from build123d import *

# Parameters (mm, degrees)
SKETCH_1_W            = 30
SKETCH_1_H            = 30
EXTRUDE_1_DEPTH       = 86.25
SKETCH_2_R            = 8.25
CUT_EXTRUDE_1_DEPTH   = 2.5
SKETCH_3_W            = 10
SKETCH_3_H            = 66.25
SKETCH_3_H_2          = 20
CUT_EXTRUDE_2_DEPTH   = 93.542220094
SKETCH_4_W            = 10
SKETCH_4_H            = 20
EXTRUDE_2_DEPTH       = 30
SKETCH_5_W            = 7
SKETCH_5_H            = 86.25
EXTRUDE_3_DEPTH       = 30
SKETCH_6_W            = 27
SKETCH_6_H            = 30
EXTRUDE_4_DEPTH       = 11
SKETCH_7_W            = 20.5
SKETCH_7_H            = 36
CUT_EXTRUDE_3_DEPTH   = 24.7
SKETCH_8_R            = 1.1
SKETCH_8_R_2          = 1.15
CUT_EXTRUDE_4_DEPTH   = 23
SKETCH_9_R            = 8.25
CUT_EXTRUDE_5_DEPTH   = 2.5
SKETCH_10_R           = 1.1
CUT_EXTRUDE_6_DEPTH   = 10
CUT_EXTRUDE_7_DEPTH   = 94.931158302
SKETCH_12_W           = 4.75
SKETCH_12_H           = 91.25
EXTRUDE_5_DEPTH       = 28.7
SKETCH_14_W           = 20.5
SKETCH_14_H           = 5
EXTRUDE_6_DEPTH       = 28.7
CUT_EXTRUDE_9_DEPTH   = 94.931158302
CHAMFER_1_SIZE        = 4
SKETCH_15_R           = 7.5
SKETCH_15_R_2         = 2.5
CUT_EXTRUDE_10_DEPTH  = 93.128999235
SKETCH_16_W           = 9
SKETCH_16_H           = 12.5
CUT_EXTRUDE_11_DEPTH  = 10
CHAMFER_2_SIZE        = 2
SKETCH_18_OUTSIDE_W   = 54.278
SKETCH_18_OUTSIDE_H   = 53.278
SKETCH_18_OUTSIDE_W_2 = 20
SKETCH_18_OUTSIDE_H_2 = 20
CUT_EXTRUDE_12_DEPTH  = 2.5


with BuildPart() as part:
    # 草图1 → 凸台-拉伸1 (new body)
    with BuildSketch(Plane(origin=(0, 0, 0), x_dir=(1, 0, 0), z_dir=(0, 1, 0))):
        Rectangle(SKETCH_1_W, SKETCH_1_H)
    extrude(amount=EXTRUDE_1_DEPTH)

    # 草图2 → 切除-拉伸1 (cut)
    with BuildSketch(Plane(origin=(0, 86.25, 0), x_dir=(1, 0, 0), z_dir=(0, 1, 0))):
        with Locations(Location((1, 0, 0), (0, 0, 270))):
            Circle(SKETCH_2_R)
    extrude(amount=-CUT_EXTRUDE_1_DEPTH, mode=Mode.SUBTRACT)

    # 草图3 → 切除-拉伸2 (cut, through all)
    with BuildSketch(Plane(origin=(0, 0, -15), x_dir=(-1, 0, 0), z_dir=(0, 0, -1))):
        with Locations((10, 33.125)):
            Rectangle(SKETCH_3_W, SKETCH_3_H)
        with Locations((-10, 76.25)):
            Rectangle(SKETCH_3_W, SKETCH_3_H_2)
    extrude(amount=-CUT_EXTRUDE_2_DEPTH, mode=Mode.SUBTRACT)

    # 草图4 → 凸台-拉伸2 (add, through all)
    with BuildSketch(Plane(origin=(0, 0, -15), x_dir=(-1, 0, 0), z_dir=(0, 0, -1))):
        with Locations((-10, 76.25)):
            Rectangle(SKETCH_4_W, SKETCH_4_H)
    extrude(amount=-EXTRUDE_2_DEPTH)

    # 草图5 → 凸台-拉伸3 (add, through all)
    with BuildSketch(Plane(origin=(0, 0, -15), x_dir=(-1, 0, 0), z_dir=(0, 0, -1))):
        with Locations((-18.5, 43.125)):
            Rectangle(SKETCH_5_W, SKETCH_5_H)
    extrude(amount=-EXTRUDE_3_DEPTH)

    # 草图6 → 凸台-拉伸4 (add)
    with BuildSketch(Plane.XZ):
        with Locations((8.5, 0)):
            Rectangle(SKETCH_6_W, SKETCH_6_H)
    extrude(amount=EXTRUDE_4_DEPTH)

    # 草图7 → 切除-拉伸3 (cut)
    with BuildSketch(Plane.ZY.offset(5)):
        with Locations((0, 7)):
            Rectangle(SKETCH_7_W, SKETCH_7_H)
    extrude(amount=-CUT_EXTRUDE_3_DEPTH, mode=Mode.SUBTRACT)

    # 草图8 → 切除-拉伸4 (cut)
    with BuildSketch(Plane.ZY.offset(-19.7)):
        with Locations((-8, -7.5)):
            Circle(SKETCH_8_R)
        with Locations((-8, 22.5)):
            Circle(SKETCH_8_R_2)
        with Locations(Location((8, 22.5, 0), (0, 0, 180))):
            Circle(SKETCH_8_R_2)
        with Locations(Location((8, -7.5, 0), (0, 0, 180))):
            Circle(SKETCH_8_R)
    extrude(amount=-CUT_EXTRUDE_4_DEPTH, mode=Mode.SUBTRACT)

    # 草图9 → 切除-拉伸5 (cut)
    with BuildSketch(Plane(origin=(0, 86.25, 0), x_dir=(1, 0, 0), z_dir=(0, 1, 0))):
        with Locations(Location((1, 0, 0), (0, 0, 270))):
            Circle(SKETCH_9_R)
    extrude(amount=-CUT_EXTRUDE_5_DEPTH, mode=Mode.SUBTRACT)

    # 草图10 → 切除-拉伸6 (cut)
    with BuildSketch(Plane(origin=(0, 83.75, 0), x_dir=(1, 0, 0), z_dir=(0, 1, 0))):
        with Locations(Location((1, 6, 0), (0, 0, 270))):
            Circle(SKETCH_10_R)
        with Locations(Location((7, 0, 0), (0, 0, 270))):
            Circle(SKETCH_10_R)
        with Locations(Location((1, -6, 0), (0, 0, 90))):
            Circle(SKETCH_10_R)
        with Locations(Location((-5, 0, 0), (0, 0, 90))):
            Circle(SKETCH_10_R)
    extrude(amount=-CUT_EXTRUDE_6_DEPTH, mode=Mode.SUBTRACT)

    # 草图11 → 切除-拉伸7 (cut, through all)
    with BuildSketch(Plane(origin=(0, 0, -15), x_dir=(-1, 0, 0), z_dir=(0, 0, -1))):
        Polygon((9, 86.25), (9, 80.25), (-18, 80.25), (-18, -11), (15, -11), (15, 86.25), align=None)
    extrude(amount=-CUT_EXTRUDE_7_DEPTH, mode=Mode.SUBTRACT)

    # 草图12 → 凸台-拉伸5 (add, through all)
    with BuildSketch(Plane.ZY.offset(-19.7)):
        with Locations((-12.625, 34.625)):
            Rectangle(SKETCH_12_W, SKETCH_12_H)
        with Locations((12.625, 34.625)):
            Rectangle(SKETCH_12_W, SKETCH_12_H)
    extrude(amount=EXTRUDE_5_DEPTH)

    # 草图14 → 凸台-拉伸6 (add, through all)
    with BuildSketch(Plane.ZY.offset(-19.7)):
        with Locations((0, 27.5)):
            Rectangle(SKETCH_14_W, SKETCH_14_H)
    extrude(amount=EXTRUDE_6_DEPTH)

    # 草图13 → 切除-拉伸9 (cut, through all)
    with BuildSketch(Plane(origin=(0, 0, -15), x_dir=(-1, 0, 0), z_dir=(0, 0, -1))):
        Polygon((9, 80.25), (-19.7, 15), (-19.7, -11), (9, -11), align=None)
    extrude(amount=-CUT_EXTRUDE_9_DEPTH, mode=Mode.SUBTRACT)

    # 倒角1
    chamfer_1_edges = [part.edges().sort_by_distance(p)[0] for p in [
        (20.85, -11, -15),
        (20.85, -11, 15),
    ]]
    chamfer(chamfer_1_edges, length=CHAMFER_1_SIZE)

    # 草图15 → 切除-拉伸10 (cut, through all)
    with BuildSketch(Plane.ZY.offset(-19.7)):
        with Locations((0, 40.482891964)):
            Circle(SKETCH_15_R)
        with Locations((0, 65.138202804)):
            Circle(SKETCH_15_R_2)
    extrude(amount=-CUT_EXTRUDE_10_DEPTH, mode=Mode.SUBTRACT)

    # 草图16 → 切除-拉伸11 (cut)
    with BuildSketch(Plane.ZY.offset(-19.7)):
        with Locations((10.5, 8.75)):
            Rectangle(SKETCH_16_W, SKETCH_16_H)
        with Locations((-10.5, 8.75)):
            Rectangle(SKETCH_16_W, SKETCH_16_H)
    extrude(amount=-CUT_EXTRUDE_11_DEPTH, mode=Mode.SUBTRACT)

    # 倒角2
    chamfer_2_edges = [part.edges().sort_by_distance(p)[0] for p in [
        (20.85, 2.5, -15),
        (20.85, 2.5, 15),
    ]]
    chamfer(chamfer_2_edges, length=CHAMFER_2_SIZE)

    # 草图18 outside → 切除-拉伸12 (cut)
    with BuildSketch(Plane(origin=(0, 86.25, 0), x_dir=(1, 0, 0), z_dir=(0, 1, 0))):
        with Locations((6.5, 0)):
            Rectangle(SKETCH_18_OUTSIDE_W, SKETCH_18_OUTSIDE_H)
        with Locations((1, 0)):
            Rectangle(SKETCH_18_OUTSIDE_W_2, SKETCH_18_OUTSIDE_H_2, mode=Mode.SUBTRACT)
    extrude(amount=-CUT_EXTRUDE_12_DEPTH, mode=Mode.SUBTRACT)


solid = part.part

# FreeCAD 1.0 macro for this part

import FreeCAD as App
import Part
import Sketcher
Q = App.Units.Quantity


def edges_at(feature, points):
    """Names of the edges that pass closest to the given points."""
    edges = feature.Shape.Edges
    near = lambda p: min(range(len(edges)), key=lambda i: edges[i].distToShape(Part.Vertex(*p))[0])
    return sorted({f"Edge{near(p) + 1}" for p in points})


def add_polygon(sketch, points):
    """Adds a closed chain of lines whose ends are joined by coincident constraints."""
    first, n = sketch.GeometryCount, len(points)
    for a, b in zip(points, points[1:] + points[:1]):
        sketch.addGeometry(Part.LineSegment(App.Vector(*a, 0), App.Vector(*b, 0)), False)
    for i in range(n):
        sketch.addConstraint(Sketcher.Constraint("Coincident", first + i, 2, first + (i + 1) % n, 1))

doc = App.newDocument("Part")
body = doc.addObject("PartDesign::Body", "Body")

sketch1 = body.newObject("Sketcher::SketchObject", "Sketch")
sketch1.AttachmentSupport = (doc.getObject("XZ_Plane"), [""])
sketch1.MapMode = "FlatFace"
add_polygon(sketch1, [(-15, -15), (-15, 15), (15, 15), (15, -15)])
sketch1.addConstraint(Sketcher.Constraint("Vertical", 0))
sketch1.addConstraint(Sketcher.Constraint("Horizontal", 1))
sketch1.addConstraint(Sketcher.Constraint("Vertical", 2))
sketch1.addConstraint(Sketcher.Constraint("Horizontal", 3))
sketch1.addConstraint(Sketcher.Constraint("Symmetric", 0, 2, 2, 2, -1, 1))
sketch1.addConstraint(Sketcher.Constraint("Equal", 3, 0))
sketch1.addConstraint(Sketcher.Constraint("DistanceX", 1, 1, 1, 2, Q("30 mm")))
pad1 = body.newObject("PartDesign::Pad", "Pad")
pad1.Profile = sketch1
pad1.Length = 86.25
pad1.Reversed = True

sketch2 = body.newObject("Sketcher::SketchObject", "Sketch001")
sketch2.AttachmentSupport = (doc.getObject("XZ_Plane"), [""])
sketch2.MapMode = "FlatFace"
sketch2.AttachmentOffset = App.Placement(App.Vector(0, 0, -86.25), App.Rotation())
sketch2.addGeometry(Part.Circle(App.Vector(1, 0, 0), App.Vector(0, 0, 1), 8), False)
sketch2.addConstraint(Sketcher.Constraint("PointOnObject", 0, 3, -1))
sketch2.addConstraint(Sketcher.Constraint("Diameter", 0, Q("16.5 mm")))
sketch2.addConstraint(Sketcher.Constraint("DistanceX", -1, 1, 0, 3, Q("1 mm")))
pocket1 = body.newObject("PartDesign::Pocket", "Pocket")
pocket1.Profile = sketch2
pocket1.Length = 2.5
pocket1.Reversed = True

sketch3 = body.newObject("Sketcher::SketchObject", "Sketch002")
sketch3.AttachmentSupport = (doc.getObject("XY_Plane"), [""])
sketch3.MapMode = "FlatFace"
sketch3.AttachmentOffset = App.Placement(App.Vector(0, 0, -15), App.Rotation())
add_polygon(sketch3, [(-5, 66), (-5, 0), (-15, 0), (-15, 66)])
add_polygon(sketch3, [(15, 86), (15, 66), (5, 66), (5, 86)])
sketch3.addConstraint(Sketcher.Constraint("Vertical", 0))
sketch3.addConstraint(Sketcher.Constraint("Horizontal", 1))
sketch3.addConstraint(Sketcher.Constraint("Vertical", 2))
sketch3.addConstraint(Sketcher.Constraint("Horizontal", 3))
sketch3.addConstraint(Sketcher.Constraint("Vertical", 4))
sketch3.addConstraint(Sketcher.Constraint("Horizontal", 5))
sketch3.addConstraint(Sketcher.Constraint("Vertical", 6))
sketch3.addConstraint(Sketcher.Constraint("Horizontal", 7))
sketch3.addConstraint(Sketcher.Constraint("Symmetric", 2, 2, 4, 2, -2))
sketch3.addConstraint(Sketcher.Constraint("PointOnObject", 0, 2, -1))
sketch3.addConstraint(Sketcher.Constraint("Equal", 3, 5))
sketch3.addConstraint(Sketcher.Constraint("DistanceX", 1, 2, 1, 1, Q("10 mm")))
sketch3.addConstraint(Sketcher.Constraint("DistanceY", 4, 2, 4, 1, Q("20 mm")))
sketch3.addConstraint(Sketcher.Constraint("DistanceX", 0, 2, -1, 1, Q("5 mm")))
sketch3.addConstraint(Sketcher.Constraint("DistanceY", 0, 2, 0, 1, Q("66.25 mm")))
pocket2 = body.newObject("PartDesign::Pocket", "Pocket001")
pocket2.Profile = sketch3
pocket2.Type = "ThroughAll"
pocket2.Reversed = True

sketch4 = body.newObject("Sketcher::SketchObject", "Sketch003")
sketch4.AttachmentSupport = (doc.getObject("XY_Plane"), [""])
sketch4.MapMode = "FlatFace"
sketch4.AttachmentOffset = App.Placement(App.Vector(0, 0, -15), App.Rotation())
add_polygon(sketch4, [(15, 86), (15, 66), (5, 66), (5, 86)])
sketch4.addConstraint(Sketcher.Constraint("Vertical", 0))
sketch4.addConstraint(Sketcher.Constraint("Horizontal", 1))
sketch4.addConstraint(Sketcher.Constraint("Vertical", 2))
sketch4.addConstraint(Sketcher.Constraint("Horizontal", 3))
sketch4.addConstraint(Sketcher.Constraint("DistanceX", 1, 2, 1, 1, Q("10 mm")))
sketch4.addConstraint(Sketcher.Constraint("DistanceY", 0, 2, 0, 1, Q("20 mm")))
sketch4.addConstraint(Sketcher.Constraint("DistanceX", -1, 1, 0, 2, Q("15 mm")))
sketch4.addConstraint(Sketcher.Constraint("DistanceY", -1, 1, 0, 2, Q("66.25 mm")))
pad2 = body.newObject("PartDesign::Pad", "Pad001")
pad2.Profile = sketch4
pad2.Length = 30

sketch5 = body.newObject("Sketcher::SketchObject", "Sketch004")
sketch5.AttachmentSupport = (doc.getObject("XY_Plane"), [""])
sketch5.MapMode = "FlatFace"
sketch5.AttachmentOffset = App.Placement(App.Vector(0, 0, -15), App.Rotation())
add_polygon(sketch5, [(22, 86), (22, 0), (15, 0), (15, 86)])
sketch5.addConstraint(Sketcher.Constraint("Vertical", 0))
sketch5.addConstraint(Sketcher.Constraint("Horizontal", 1))
sketch5.addConstraint(Sketcher.Constraint("Vertical", 2))
sketch5.addConstraint(Sketcher.Constraint("Horizontal", 3))
sketch5.addConstraint(Sketcher.Constraint("PointOnObject", 0, 2, -1))
sketch5.addConstraint(Sketcher.Constraint("DistanceX", 1, 2, 1, 1, Q("7 mm")))
sketch5.addConstraint(Sketcher.Constraint("DistanceX", -1, 1, 0, 2, Q("22 mm")))
sketch5.addConstraint(Sketcher.Constraint("DistanceY", 0, 2, 0, 1, Q("86.25 mm")))
pad3 = body.newObject("PartDesign::Pad", "Pad002")
pad3.Profile = sketch5
pad3.Length = 30

sketch6 = body.newObject("Sketcher::SketchObject", "Sketch005")
sketch6.AttachmentSupport = (doc.getObject("XZ_Plane"), [""])
sketch6.MapMode = "FlatFace"
add_polygon(sketch6, [(-5, 15), (-5, -15), (22, -15), (22, 15)])
sketch6.addConstraint(Sketcher.Constraint("Vertical", 0))
sketch6.addConstraint(Sketcher.Constraint("Horizontal", 1))
sketch6.addConstraint(Sketcher.Constraint("Vertical", 2))
sketch6.addConstraint(Sketcher.Constraint("Horizontal", 3))
sketch6.addConstraint(Sketcher.Constraint("DistanceX", 1, 1, 1, 2, Q("27 mm")))
sketch6.addConstraint(Sketcher.Constraint("DistanceY", 0, 2, 0, 1, Q("30 mm")))
sketch6.addConstraint(Sketcher.Constraint("DistanceX", 0, 2, -1, 1, Q("5 mm")))
sketch6.addConstraint(Sketcher.Constraint("DistanceY", 0, 2, -1, 1, Q("15 mm")))
pad4 = body.newObject("PartDesign::Pad", "Pad003")
pad4.Profile = sketch6
pad4.Length = 11

sketch7 = body.newObject("Sketcher::SketchObject", "Sketch006")
sketch7.AttachmentSupport = (doc.getObject("YZ_Plane"), [""])
sketch7.MapMode = "FlatFace"
sketch7.AttachmentOffset = App.Placement(App.Vector(0, 0, -5), App.Rotation())
add_polygon(sketch7, [(25, -10), (-11, -10), (-11, 10), (25, 10)])
sketch7.addConstraint(Sketcher.Constraint("Horizontal", 0))
sketch7.addConstraint(Sketcher.Constraint("Vertical", 1))
sketch7.addConstraint(Sketcher.Constraint("Horizontal", 2))
sketch7.addConstraint(Sketcher.Constraint("Vertical", 3))
sketch7.addConstraint(Sketcher.Constraint("DistanceX", 0, 2, 0, 1, Q("36 mm")))
sketch7.addConstraint(Sketcher.Constraint("DistanceY", 1, 1, 1, 2, Q("20.5 mm")))
sketch7.addConstraint(Sketcher.Constraint("DistanceX", 0, 2, -1, 1, Q("11 mm")))
sketch7.addConstraint(Sketcher.Constraint("DistanceY", 0, 2, -1, 1, Q("10.25 mm")))
pocket3 = body.newObject("PartDesign::Pocket", "Pocket002")
pocket3.Profile = sketch7
pocket3.Length = 24.7
pocket3.Reversed = True

sketch8 = body.newObject("Sketcher::SketchObject", "Sketch007")
sketch8.AttachmentSupport = (doc.getObject("YZ_Plane"), [""])
sketch8.MapMode = "FlatFace"
sketch8.AttachmentOffset = App.Placement(App.Vector(0, 0, 19.7), App.Rotation())
sketch8.addGeometry(Part.Circle(App.Vector(-7.5, -8, 0), App.Vector(0, 0, 1), 1.1), False)
sketch8.addGeometry(Part.Circle(App.Vector(22.5, -8, 0), App.Vector(0, 0, 1), 1.1), False)
sketch8.addGeometry(Part.Circle(App.Vector(22.5, 8, 0), App.Vector(0, 0, 1), 1.1), False)
sketch8.addGeometry(Part.Circle(App.Vector(-7.5, 8, 0), App.Vector(0, 0, 1), 1.1), False)
sketch8.addConstraint(Sketcher.Constraint("Equal", 1, 2))
sketch8.addConstraint(Sketcher.Constraint("Equal", 0, 3))
sketch8.addConstraint(Sketcher.Constraint("Symmetric", 1, 3, 2, 3, -1))
sketch8.addConstraint(Sketcher.Constraint("Symmetric", 0, 3, 3, 3, -1))
sketch8.addConstraint(Sketcher.Constraint("Horizontal", 0, 3, 1, 3))
sketch8.addConstraint(Sketcher.Constraint("Diameter", 0, Q("2.2 mm")))
sketch8.addConstraint(Sketcher.Constraint("Diameter", 1, Q("2.3 mm")))
sketch8.addConstraint(Sketcher.Constraint("DistanceY", 0, 3, -1, 1, Q("8 mm")))
sketch8.addConstraint(Sketcher.Constraint("DistanceX", 0, 3, 1, 3, Q("30 mm")))
sketch8.addConstraint(Sketcher.Constraint("DistanceX", 0, 3, -1, 1, Q("7.5 mm")))
pocket4 = body.newObject("PartDesign::Pocket", "Pocket003")
pocket4.Profile = sketch8
pocket4.Length = 23
pocket4.Reversed = True

sketch9 = body.newObject("Sketcher::SketchObject", "Sketch008")
sketch9.AttachmentSupport = (doc.getObject("XZ_Plane"), [""])
sketch9.MapMode = "FlatFace"
sketch9.AttachmentOffset = App.Placement(App.Vector(0, 0, -86.25), App.Rotation())
sketch9.addGeometry(Part.Circle(App.Vector(1, 0, 0), App.Vector(0, 0, 1), 8), False)
sketch9.addConstraint(Sketcher.Constraint("PointOnObject", 0, 3, -1))
sketch9.addConstraint(Sketcher.Constraint("Diameter", 0, Q("16.5 mm")))
sketch9.addConstraint(Sketcher.Constraint("DistanceX", -1, 1, 0, 3, Q("1 mm")))
pocket5 = body.newObject("PartDesign::Pocket", "Pocket004")
pocket5.Profile = sketch9
pocket5.Length = 2.5
pocket5.Reversed = True

sketch10 = body.newObject("Sketcher::SketchObject", "Sketch009")
sketch10.AttachmentSupport = (doc.getObject("XZ_Plane"), [""])
sketch10.MapMode = "FlatFace"
sketch10.AttachmentOffset = App.Placement(App.Vector(0, 0, -83.75), App.Rotation())
sketch10.addGeometry(Part.Circle(App.Vector(1, -6, 0), App.Vector(0, 0, 1), 1.1), False)
sketch10.addGeometry(Part.Circle(App.Vector(7, 0, 0), App.Vector(0, 0, 1), 1.1), False)
sketch10.addGeometry(Part.Circle(App.Vector(1, 6, 0), App.Vector(0, 0, 1), 1.1), False)
sketch10.addGeometry(Part.Circle(App.Vector(-5, 0, 0), App.Vector(0, 0, 1), 1.1), False)
sketch10.addConstraint(Sketcher.Constraint("Equal", 0, 1))
sketch10.addConstraint(Sketcher.Constraint("Equal", 1, 2))
sketch10.addConstraint(Sketcher.Constraint("Equal", 2, 3))
sketch10.addConstraint(Sketcher.Constraint("Symmetric", 0, 3, 2, 3, -1))
sketch10.addConstraint(Sketcher.Constraint("PointOnObject", 1, 3, -1))
sketch10.addConstraint(Sketcher.Constraint("PointOnObject", 3, 3, -1))
sketch10.addConstraint(Sketcher.Constraint("Diameter", 0, Q("2.2 mm")))
sketch10.addConstraint(Sketcher.Constraint("DistanceX", -1, 1, 0, 3, Q("1 mm")))
sketch10.addConstraint(Sketcher.Constraint("DistanceY", 0, 3, -1, 1, Q("6 mm")))
sketch10.addConstraint(Sketcher.Constraint("DistanceX", -1, 1, 1, 3, Q("7 mm")))
sketch10.addConstraint(Sketcher.Constraint("DistanceX", 3, 3, -1, 1, Q("5 mm")))
pocket6 = body.newObject("PartDesign::Pocket", "Pocket005")
pocket6.Profile = sketch10
pocket6.Length = 10
pocket6.Reversed = True

sketch11 = body.newObject("Sketcher::SketchObject", "Sketch010")
sketch11.AttachmentSupport = (doc.getObject("XY_Plane"), [""])
sketch11.MapMode = "FlatFace"
sketch11.AttachmentOffset = App.Placement(App.Vector(0, 0, -15), App.Rotation())
add_polygon(sketch11, [(-9, 86), (-9, 80), (18, 80), (18, -11), (-15, -11), (-15, 86)])
sketch11.addConstraint(Sketcher.Constraint("Vertical", 0))
sketch11.addConstraint(Sketcher.Constraint("Horizontal", 1))
sketch11.addConstraint(Sketcher.Constraint("Vertical", 2))
sketch11.addConstraint(Sketcher.Constraint("Horizontal", 3))
sketch11.addConstraint(Sketcher.Constraint("Vertical", 4))
sketch11.addConstraint(Sketcher.Constraint("Horizontal", 5))
sketch11.addConstraint(Sketcher.Constraint("Equal", 5, 0))
sketch11.addConstraint(Sketcher.Constraint("DistanceX", 1, 1, 1, 2, Q("27 mm")))
sketch11.addConstraint(Sketcher.Constraint("DistanceX", 3, 2, 3, 1, Q("33 mm")))
sketch11.addConstraint(Sketcher.Constraint("DistanceX", 0, 2, -1, 1, Q("9 mm")))
sketch11.addConstraint(Sketcher.Constraint("DistanceY", 2, 2, -1, 1, Q("11 mm")))
sketch11.addConstraint(Sketcher.Constraint("DistanceY", 2, 2, 2, 1, Q("91.25 mm")))
pocket7 = body.newObject("PartDesign::Pocket", "Pocket006")
pocket7.Profile = sketch11
pocket7.Type = "ThroughAll"
pocket7.Reversed = True

sketch12 = body.newObject("Sketcher::SketchObject", "Sketch011")
sketch12.AttachmentSupport = (doc.getObject("YZ_Plane"), [""])
sketch12.MapMode = "FlatFace"
sketch12.AttachmentOffset = App.Placement(App.Vector(0, 0, 19.7), App.Rotation())
add_polygon(sketch12, [(80.2, -15), (-11, -15), (-11, -10.2), (80.2, -10.2)])
add_polygon(sketch12, [(80.2, 10.2), (-11, 10.2), (-11, 15), (80.2, 15)])
sketch12.addConstraint(Sketcher.Constraint("Horizontal", 0))
sketch12.addConstraint(Sketcher.Constraint("Vertical", 1))
sketch12.addConstraint(Sketcher.Constraint("Horizontal", 2))
sketch12.addConstraint(Sketcher.Constraint("Vertical", 3))
sketch12.addConstraint(Sketcher.Constraint("Horizontal", 4))
sketch12.addConstraint(Sketcher.Constraint("Vertical", 5))
sketch12.addConstraint(Sketcher.Constraint("Horizontal", 6))
sketch12.addConstraint(Sketcher.Constraint("Vertical", 7))
sketch12.addConstraint(Sketcher.Constraint("Symmetric", 1, 2, 4, 2, -1))
sketch12.addConstraint(Sketcher.Constraint("Symmetric", 3, 2, 6, 2, -1))
sketch12.addConstraint(Sketcher.Constraint("DistanceX", 0, 2, -1, 1, Q("11 mm")))
sketch12.addConstraint(Sketcher.Constraint("DistanceY", 0, 2, -1, 1, Q("15 mm")))
sketch12.addConstraint(Sketcher.Constraint("DistanceX", 0, 2, 0, 1, Q("91.25 mm")))
sketch12.addConstraint(Sketcher.Constraint("DistanceY", 1, 1, 1, 2, Q("4.75 mm")))
pad5 = body.newObject("PartDesign::Pad", "Pad004")
pad5.Profile = sketch12
pad5.Length = 28.7
pad5.Reversed = True

sketch13 = body.newObject("Sketcher::SketchObject", "Sketch012")
sketch13.AttachmentSupport = (doc.getObject("YZ_Plane"), [""])
sketch13.MapMode = "FlatFace"
sketch13.AttachmentOffset = App.Placement(App.Vector(0, 0, 19.7), App.Rotation())
add_polygon(sketch13, [(30, -10), (25, -10), (25, 10), (30, 10)])
sketch13.addConstraint(Sketcher.Constraint("Horizontal", 0))
sketch13.addConstraint(Sketcher.Constraint("Vertical", 1))
sketch13.addConstraint(Sketcher.Constraint("Horizontal", 2))
sketch13.addConstraint(Sketcher.Constraint("Vertical", 3))
sketch13.addConstraint(Sketcher.Constraint("DistanceX", 0, 2, 0, 1, Q("5 mm")))
sketch13.addConstraint(Sketcher.Constraint("DistanceY", 1, 1, 1, 2, Q("20.5 mm")))
sketch13.addConstraint(Sketcher.Constraint("DistanceX", -1, 1, 0, 2, Q("25 mm")))
sketch13.addConstraint(Sketcher.Constraint("DistanceY", 0, 2, -1, 1, Q("10.25 mm")))
pad6 = body.newObject("PartDesign::Pad", "Pad005")
pad6.Profile = sketch13
pad6.Length = 28.7
pad6.Reversed = True

sketch14 = body.newObject("Sketcher::SketchObject", "Sketch013")
sketch14.AttachmentSupport = (doc.getObject("XY_Plane"), [""])
sketch14.MapMode = "FlatFace"
sketch14.AttachmentOffset = App.Placement(App.Vector(0, 0, -15), App.Rotation())
add_polygon(sketch14, [(-9, 80), (20, 15), (20, -11), (-9, -11)])
sketch14.addConstraint(Sketcher.Constraint("Vertical", 1))
sketch14.addConstraint(Sketcher.Constraint("Horizontal", 2))
sketch14.addConstraint(Sketcher.Constraint("Vertical", 3))
sketch14.addConstraint(Sketcher.Constraint("DistanceY", 1, 2, 1, 1, Q("26 mm")))
sketch14.addConstraint(Sketcher.Constraint("DistanceX", 2, 2, 2, 1, Q("28.7 mm")))
sketch14.addConstraint(Sketcher.Constraint("DistanceY", -1, 1, 0, 2, Q("15 mm")))
sketch14.addConstraint(Sketcher.Constraint("DistanceX", 2, 2, -1, 1, Q("9 mm")))
sketch14.addConstraint(Sketcher.Constraint("DistanceY", 3, 1, 3, 2, Q("91.25 mm")))
pocket8 = body.newObject("PartDesign::Pocket", "Pocket007")
pocket8.Profile = sketch14
pocket8.Type = "ThroughAll"
pocket8.Reversed = True
doc.recompute()

chamfer = body.newObject("PartDesign::Chamfer", "Chamfer")
chamfer.Base = (pocket8, edges_at(pocket8, [(20.85, -11, -15), (20.85, -11, 15)]))
chamfer.Size = 4

sketch15 = body.newObject("Sketcher::SketchObject", "Sketch014")
sketch15.AttachmentSupport = (doc.getObject("YZ_Plane"), [""])
sketch15.MapMode = "FlatFace"
sketch15.AttachmentOffset = App.Placement(App.Vector(0, 0, 19.7), App.Rotation())
sketch15.addGeometry(Part.Circle(App.Vector(40.5, 0, 0), App.Vector(0, 0, 1), 7.5), False)
sketch15.addGeometry(Part.Circle(App.Vector(65.1, 0, 0), App.Vector(0, 0, 1), 2.5), False)
sketch15.addConstraint(Sketcher.Constraint("PointOnObject", 0, 3, -1))
sketch15.addConstraint(Sketcher.Constraint("PointOnObject", 1, 3, -1))
sketch15.addConstraint(Sketcher.Constraint("Diameter", 0, Q("15 mm")))
sketch15.addConstraint(Sketcher.Constraint("Diameter", 1, Q("5 mm")))
sketch15.addConstraint(Sketcher.Constraint("DistanceX", -1, 1, 0, 3, Q("40.482892 mm")))
sketch15.addConstraint(Sketcher.Constraint("DistanceX", 0, 3, 1, 3, Q("24.655311 mm")))
pocket9 = body.newObject("PartDesign::Pocket", "Pocket008")
pocket9.Profile = sketch15
pocket9.Type = "ThroughAll"
pocket9.Reversed = True

sketch16 = body.newObject("Sketcher::SketchObject", "Sketch015")
sketch16.AttachmentSupport = (doc.getObject("YZ_Plane"), [""])
sketch16.MapMode = "FlatFace"
sketch16.AttachmentOffset = App.Placement(App.Vector(0, 0, 19.7), App.Rotation())
add_polygon(sketch16, [(15, 6), (2, 6), (2, 15), (15, 15)])
add_polygon(sketch16, [(15, -15), (2, -15), (2, -6), (15, -6)])
sketch16.addConstraint(Sketcher.Constraint("Horizontal", 0))
sketch16.addConstraint(Sketcher.Constraint("Vertical", 1))
sketch16.addConstraint(Sketcher.Constraint("Horizontal", 2))
sketch16.addConstraint(Sketcher.Constraint("Vertical", 3))
sketch16.addConstraint(Sketcher.Constraint("Horizontal", 4))
sketch16.addConstraint(Sketcher.Constraint("Vertical", 5))
sketch16.addConstraint(Sketcher.Constraint("Horizontal", 6))
sketch16.addConstraint(Sketcher.Constraint("Vertical", 7))
sketch16.addConstraint(Sketcher.Constraint("Symmetric", 1, 2, 4, 2, -1))
sketch16.addConstraint(Sketcher.Constraint("Symmetric", 3, 2, 6, 2, -1))
sketch16.addConstraint(Sketcher.Constraint("DistanceY", 1, 1, 1, 2, Q("9 mm")))
sketch16.addConstraint(Sketcher.Constraint("DistanceX", 0, 2, 0, 1, Q("12.5 mm")))
sketch16.addConstraint(Sketcher.Constraint("DistanceY", -1, 1, 0, 2, Q("6 mm")))
sketch16.addConstraint(Sketcher.Constraint("DistanceX", -1, 1, 2, 2, Q("15 mm")))
pocket10 = body.newObject("PartDesign::Pocket", "Pocket009")
pocket10.Profile = sketch16
pocket10.Length = 10
pocket10.Reversed = True
doc.recompute()

chamfer2 = body.newObject("PartDesign::Chamfer", "Chamfer001")
chamfer2.Base = (pocket10, edges_at(pocket10, [(20.85, 2.5, -15), (20.85, 2.5, 15)]))
chamfer2.Size = 2

sketch17 = body.newObject("Sketcher::SketchObject", "Sketch016")
sketch17.AttachmentSupport = (doc.getObject("XZ_Plane"), [""])
sketch17.MapMode = "FlatFace"
sketch17.AttachmentOffset = App.Placement(App.Vector(0, 0, -86.25), App.Rotation())
add_polygon(sketch17, [(-21, -27), (-21, 27), (34, 27), (34, -27)])
add_polygon(sketch17, [(11, 10), (-9, 10), (-9, -10), (11, -10)])
sketch17.addConstraint(Sketcher.Constraint("Vertical", 0))
sketch17.addConstraint(Sketcher.Constraint("Horizontal", 1))
sketch17.addConstraint(Sketcher.Constraint("Vertical", 2))
sketch17.addConstraint(Sketcher.Constraint("Horizontal", 3))
sketch17.addConstraint(Sketcher.Constraint("Horizontal", 4))
sketch17.addConstraint(Sketcher.Constraint("Vertical", 5))
sketch17.addConstraint(Sketcher.Constraint("Horizontal", 6))
sketch17.addConstraint(Sketcher.Constraint("Vertical", 7))
sketch17.addConstraint(Sketcher.Constraint("Equal", 6, 5))
sketch17.addConstraint(Sketcher.Constraint("DistanceX", 4, 2, 4, 1, Q("20 mm")))
sketch17.addConstraint(Sketcher.Constraint("DistanceX", 4, 2, -1, 1, Q("9 mm")))
sketch17.addConstraint(Sketcher.Constraint("DistanceY", -1, 1, 4, 2, Q("10 mm")))
sketch17.addConstraint(Sketcher.Constraint("DistanceX", 1, 1, 1, 2, Q("54.278 mm")))
sketch17.addConstraint(Sketcher.Constraint("DistanceY", 0, 1, 0, 2, Q("53.278 mm")))
sketch17.addConstraint(Sketcher.Constraint("DistanceX", 0, 2, -1, 1, Q("20.639 mm")))
sketch17.addConstraint(Sketcher.Constraint("DistanceY", -1, 1, 0, 2, Q("26.639 mm")))
pocket11 = body.newObject("PartDesign::Pocket", "Pocket010")
pocket11.Profile = sketch17
pocket11.Length = 2.5
pocket11.Reversed = True

doc.recompute()
